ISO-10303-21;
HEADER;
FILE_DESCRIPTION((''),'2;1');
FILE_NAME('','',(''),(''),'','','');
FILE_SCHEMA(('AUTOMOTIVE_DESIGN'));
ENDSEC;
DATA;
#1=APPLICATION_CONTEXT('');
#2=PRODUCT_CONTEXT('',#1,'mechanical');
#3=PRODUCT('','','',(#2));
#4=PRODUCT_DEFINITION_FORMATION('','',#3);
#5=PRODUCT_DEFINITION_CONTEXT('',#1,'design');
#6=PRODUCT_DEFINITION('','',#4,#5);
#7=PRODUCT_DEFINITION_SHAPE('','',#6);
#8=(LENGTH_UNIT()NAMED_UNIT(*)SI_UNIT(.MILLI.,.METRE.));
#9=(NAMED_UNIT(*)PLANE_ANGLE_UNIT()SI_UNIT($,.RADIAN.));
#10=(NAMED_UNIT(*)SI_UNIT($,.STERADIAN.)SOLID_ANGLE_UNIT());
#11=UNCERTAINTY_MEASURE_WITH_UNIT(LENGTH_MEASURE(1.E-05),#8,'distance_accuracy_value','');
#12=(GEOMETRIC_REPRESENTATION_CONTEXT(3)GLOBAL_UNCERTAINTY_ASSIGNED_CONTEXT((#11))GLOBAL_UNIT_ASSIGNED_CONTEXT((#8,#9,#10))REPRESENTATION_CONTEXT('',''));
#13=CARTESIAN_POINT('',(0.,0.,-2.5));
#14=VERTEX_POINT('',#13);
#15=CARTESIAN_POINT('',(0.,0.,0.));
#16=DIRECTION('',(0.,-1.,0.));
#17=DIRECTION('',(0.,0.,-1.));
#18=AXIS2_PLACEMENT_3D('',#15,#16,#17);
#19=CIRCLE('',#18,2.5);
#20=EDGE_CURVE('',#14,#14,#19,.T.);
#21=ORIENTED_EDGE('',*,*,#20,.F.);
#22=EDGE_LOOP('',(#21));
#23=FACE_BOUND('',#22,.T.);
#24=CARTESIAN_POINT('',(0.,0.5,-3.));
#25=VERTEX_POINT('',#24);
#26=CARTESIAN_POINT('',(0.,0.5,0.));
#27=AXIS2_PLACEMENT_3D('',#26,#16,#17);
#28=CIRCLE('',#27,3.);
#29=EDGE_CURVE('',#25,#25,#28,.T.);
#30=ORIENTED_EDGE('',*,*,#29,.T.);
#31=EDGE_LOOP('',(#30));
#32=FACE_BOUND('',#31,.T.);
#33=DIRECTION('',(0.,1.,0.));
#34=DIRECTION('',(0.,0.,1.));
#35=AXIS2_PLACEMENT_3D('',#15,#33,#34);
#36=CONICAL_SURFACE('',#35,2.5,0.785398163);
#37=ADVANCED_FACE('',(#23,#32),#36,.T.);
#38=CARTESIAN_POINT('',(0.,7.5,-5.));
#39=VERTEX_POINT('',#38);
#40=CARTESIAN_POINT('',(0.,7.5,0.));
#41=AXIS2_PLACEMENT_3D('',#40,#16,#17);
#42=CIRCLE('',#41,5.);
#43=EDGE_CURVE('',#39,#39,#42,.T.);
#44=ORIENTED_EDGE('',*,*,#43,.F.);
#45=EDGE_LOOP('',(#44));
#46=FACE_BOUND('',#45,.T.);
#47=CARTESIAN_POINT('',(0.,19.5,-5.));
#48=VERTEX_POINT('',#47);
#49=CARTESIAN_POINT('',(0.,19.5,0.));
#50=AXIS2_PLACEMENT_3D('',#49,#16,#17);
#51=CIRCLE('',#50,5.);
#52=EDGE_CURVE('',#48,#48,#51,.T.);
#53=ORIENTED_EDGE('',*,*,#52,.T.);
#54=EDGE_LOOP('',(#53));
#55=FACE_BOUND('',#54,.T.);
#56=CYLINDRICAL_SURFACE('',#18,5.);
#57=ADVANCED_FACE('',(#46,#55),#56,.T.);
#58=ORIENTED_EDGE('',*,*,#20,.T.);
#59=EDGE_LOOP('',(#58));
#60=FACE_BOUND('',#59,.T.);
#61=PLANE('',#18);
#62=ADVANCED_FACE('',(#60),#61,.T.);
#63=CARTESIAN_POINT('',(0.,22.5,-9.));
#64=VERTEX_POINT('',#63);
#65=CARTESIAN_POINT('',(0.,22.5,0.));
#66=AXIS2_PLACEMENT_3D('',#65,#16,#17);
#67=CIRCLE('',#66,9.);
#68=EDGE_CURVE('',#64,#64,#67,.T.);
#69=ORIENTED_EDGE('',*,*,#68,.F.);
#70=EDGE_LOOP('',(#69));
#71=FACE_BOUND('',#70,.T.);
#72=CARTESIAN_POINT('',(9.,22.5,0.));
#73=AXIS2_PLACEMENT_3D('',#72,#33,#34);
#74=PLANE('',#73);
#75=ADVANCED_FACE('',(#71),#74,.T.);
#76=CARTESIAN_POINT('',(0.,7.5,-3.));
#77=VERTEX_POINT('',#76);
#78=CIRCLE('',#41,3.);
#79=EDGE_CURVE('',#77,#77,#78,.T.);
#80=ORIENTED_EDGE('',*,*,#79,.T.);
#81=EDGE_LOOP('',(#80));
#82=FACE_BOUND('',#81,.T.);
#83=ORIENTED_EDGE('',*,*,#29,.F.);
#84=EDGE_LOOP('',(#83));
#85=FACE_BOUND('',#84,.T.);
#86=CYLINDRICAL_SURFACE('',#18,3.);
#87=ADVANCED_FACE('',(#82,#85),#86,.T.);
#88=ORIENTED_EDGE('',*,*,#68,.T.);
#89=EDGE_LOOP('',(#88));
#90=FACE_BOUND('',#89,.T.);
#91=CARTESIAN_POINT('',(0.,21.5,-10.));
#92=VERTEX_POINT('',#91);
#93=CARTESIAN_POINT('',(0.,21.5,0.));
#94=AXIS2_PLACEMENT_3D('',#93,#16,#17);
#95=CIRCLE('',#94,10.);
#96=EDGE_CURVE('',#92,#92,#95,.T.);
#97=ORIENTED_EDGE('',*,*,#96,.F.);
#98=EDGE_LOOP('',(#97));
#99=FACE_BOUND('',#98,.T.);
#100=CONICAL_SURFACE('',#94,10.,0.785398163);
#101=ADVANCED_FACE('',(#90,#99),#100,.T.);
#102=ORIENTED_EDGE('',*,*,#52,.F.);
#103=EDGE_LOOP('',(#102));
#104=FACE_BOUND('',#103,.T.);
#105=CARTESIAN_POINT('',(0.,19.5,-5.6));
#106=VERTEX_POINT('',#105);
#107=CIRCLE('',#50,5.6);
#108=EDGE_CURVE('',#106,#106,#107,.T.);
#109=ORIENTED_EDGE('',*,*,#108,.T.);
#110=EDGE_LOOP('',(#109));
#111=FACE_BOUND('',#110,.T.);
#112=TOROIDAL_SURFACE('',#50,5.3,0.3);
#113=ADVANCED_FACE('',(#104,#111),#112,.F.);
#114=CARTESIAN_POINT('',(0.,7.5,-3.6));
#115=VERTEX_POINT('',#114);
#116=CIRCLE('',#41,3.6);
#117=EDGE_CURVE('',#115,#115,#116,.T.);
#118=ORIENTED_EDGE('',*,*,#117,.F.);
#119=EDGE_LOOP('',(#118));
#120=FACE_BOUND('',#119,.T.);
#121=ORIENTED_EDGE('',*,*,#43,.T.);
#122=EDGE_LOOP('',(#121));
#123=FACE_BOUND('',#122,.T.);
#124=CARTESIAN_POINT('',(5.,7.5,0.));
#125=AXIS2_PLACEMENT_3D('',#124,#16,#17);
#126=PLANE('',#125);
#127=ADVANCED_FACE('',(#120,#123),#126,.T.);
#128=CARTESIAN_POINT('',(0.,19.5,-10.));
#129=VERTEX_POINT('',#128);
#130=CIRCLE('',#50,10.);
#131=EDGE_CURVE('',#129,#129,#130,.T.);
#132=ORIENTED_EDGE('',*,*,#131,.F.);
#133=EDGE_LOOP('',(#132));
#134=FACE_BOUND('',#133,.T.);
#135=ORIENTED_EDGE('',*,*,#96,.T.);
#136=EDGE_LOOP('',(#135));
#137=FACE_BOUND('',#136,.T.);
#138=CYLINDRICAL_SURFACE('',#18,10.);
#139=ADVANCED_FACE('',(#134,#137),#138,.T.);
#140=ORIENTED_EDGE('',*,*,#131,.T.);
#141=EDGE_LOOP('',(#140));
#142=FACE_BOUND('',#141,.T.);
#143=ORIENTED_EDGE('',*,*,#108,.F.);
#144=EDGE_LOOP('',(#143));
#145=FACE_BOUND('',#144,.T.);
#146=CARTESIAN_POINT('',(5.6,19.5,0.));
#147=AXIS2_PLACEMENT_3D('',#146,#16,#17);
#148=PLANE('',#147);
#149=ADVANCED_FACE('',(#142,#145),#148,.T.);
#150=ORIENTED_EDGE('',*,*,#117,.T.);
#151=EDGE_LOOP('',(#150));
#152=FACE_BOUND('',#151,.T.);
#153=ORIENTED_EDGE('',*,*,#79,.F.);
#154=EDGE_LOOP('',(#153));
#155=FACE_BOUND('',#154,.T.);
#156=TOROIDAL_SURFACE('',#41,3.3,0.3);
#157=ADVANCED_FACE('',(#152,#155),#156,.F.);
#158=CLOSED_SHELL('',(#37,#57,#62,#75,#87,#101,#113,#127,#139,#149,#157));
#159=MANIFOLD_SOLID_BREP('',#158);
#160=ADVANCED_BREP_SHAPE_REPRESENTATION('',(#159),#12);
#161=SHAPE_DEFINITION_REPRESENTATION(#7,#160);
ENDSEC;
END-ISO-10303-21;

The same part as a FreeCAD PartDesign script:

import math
import FreeCAD as App
import Part
import Sketcher
Q = App.Units.Quantity

doc = App.newDocument("Part")
params = doc.addObject("Spreadsheet::Sheet", "Params")
for row, (alias, value) in enumerate([
    ("sketch1_radius", "0.3 mm"),
    ("sketch1_width", "9 mm"),
    ("sketch1_height", "7 mm"),
    ("sketch1_height2", "12 mm"),
    ("sketch1_height3", "2 mm"),
    ("revolution_angle", "360 deg"),
], start=1):
    params.set(f"A{row}", alias)
    params.set(f"B{row}", "=" + value)
    params.setAlias(f"B{row}", alias)

body = doc.addObject("PartDesign::Body", "Body")

sketch1 = body.newObject("Sketcher::SketchObject", "Sketch")
sketch1.AttachmentSupport = (doc.getObject("XY_Plane"), [""])
sketch1.MapMode = "FlatFace"
sketch1.addGeometry([
    Part.LineSegment(App.Vector(0, 0, 0), App.Vector(2.5, 0, 0)),
    Part.LineSegment(App.Vector(2.5, 0, 0), App.Vector(3, 0.5, 0)),
    Part.LineSegment(App.Vector(3, 0.5, 0), App.Vector(3, 7.5, 0)),
    Part.ArcOfCircle(Part.Circle(App.Vector(3.3, 7.5, 0), App.Vector(0, 0, 1), 0.3), math.radians(0), math.radians(180)),
    Part.LineSegment(App.Vector(3.6, 7.5, 0), App.Vector(5, 7.5, 0)),
    Part.LineSegment(App.Vector(5, 7.5, 0), App.Vector(5, 19.5, 0)),
    Part.ArcOfCircle(Part.Circle(App.Vector(5.3, 19.5, 0), App.Vector(0, 0, 1), 0.3), math.radians(0), math.radians(180)),
    Part.LineSegment(App.Vector(5.6, 19.5, 0), App.Vector(10, 19.5, 0)),
    Part.LineSegment(App.Vector(10, 19.5, 0), App.Vector(10, 21.5, 0)),
    Part.LineSegment(App.Vector(10, 21.5, 0), App.Vector(9, 22.5, 0)),
    Part.LineSegment(App.Vector(9, 22.5, 0), App.Vector(0, 22.5, 0)),
    Part.LineSegment(App.Vector(0, 22.5, 0), App.Vector(0, 0, 0)),
], False)
sketch1.addConstraint([
    Sketcher.Constraint("Coincident", 0, 2, 1, 1),
    Sketcher.Constraint("Coincident", 1, 2, 2, 1),
    Sketcher.Constraint("Tangent", 2, 2, 3, 2),
    Sketcher.Constraint("Coincident", 3, 1, 4, 1),
    Sketcher.Constraint("Coincident", 4, 2, 5, 1),
    Sketcher.Constraint("Tangent", 5, 2, 6, 2),
    Sketcher.Constraint("Coincident", 6, 1, 7, 1),
    Sketcher.Constraint("Coincident", 7, 2, 8, 1),
    Sketcher.Constraint("Coincident", 8, 2, 9, 1),
    Sketcher.Constraint("Coincident", 9, 2, 10, 1),
    Sketcher.Constraint("Coincident", 10, 2, 11, 1),
    Sketcher.Constraint("Coincident", 11, 2, 0, 1),
    Sketcher.Constraint("Horizontal", 0),
    Sketcher.Constraint("Vertical", 2),
    Sketcher.Constraint("Horizontal", 4),
    Sketcher.Constraint("Vertical", 5),
    Sketcher.Constraint("Horizontal", 7),
    Sketcher.Constraint("Vertical", 8),
    Sketcher.Constraint("Horizontal", 10),
    Sketcher.Constraint("Vertical", 11),
    Sketcher.Constraint("Coincident", 11, 2, -1, 1),
    Sketcher.Constraint("Equal", 3, 6),
    Sketcher.Constraint("Perpendicular", 1, 9),
    Sketcher.Constraint("Horizontal", 2, 2, 3, 1),
    Sketcher.Constraint("Horizontal", 5, 2, 6, 1),
    Sketcher.Constraint("Radius", 3, 0.3),
    Sketcher.Constraint("DistanceX", 10, 2, 10, 1, 9.0),
    Sketcher.Constraint("DistanceY", 2, 1, 2, 2, 7.0),
    Sketcher.Constraint("DistanceY", 5, 1, 5, 2, 12.0),
    Sketcher.Constraint("DistanceY", 8, 1, 8, 2, 2.0),
    Sketcher.Constraint("Angle", 1, Q("45 deg")),
    Sketcher.Constraint("DistanceX", 0, 1, 0, 2, 2.5),
    Sketcher.Constraint("DistanceX", 4, 1, 4, 2, 1.4),
    Sketcher.Constraint("DistanceX", 7, 1, 7, 2, 4.4),
    Sketcher.Constraint("DistanceY", 11, 2, 11, 1, 22.5),
])
sketch1.setExpression("Constraints[25]", "Params.sketch1_radius")
sketch1.setExpression("Constraints[26]", "Params.sketch1_width")
sketch1.setExpression("Constraints[27]", "Params.sketch1_height")
sketch1.setExpression("Constraints[28]", "Params.sketch1_height2")
sketch1.setExpression("Constraints[29]", "Params.sketch1_height3")
revolution = body.newObject("PartDesign::Revolution", "Revolution")
revolution.Profile = sketch1
revolution.ReferenceAxis = (sketch1, ["V_Axis"])
revolution.setExpression("Angle", "Params.revolution_angle")

doc.recompute()
